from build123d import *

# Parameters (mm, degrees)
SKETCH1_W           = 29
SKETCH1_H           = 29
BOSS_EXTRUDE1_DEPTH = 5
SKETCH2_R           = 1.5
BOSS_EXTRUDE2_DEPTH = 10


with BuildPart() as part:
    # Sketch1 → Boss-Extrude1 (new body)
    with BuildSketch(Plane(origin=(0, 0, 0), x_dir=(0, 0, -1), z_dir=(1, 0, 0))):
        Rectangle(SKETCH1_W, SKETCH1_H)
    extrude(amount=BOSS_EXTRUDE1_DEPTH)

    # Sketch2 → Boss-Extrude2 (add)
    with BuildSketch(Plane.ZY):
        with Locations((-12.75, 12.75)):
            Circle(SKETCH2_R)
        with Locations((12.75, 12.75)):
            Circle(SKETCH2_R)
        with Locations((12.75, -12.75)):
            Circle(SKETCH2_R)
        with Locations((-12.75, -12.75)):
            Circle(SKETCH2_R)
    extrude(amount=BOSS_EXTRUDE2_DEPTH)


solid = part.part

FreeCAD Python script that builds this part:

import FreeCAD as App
import Part
import Sketcher

doc = App.newDocument("Part")
params = doc.addObject("Spreadsheet::Sheet", "Params")
for row, (alias, value) in enumerate([
    ("sketch1_width", "29 mm"),
    ("pad1_length", "5 mm"),
    ("sketch2_diameter", "3 mm"),
    ("pad2_length", "10 mm"),
], start=1):
    params.set(f"A{row}", alias)
    params.set(f"B{row}", "=" + value)
    params.setAlias(f"B{row}", alias)

body = doc.addObject("PartDesign::Body", "Body")

sketch1 = body.newObject("Sketcher::SketchObject", "Sketch")
sketch1.AttachmentSupport = (doc.getObject("YZ_Plane"), [""])
sketch1.MapMode = "FlatFace"
sketch1.addGeometry([
    Part.LineSegment(App.Vector(14, 14, 0), App.Vector(-14, 14, 0)),
    Part.LineSegment(App.Vector(-14, 14, 0), App.Vector(-14, -14, 0)),
    Part.LineSegment(App.Vector(-14, -14, 0), App.Vector(14, -14, 0)),
    Part.LineSegment(App.Vector(14, -14, 0), App.Vector(14, 14, 0)),
], False)
sketch1.addConstraint([
    Sketcher.Constraint("Coincident", 0, 2, 1, 1),
    Sketcher.Constraint("Coincident", 1, 2, 2, 1),
    Sketcher.Constraint("Coincident", 2, 2, 3, 1),
    Sketcher.Constraint("Coincident", 3, 2, 0, 1),
    Sketcher.Constraint("Horizontal", 0),
    Sketcher.Constraint("Vertical", 1),
    Sketcher.Constraint("Horizontal", 2),
    Sketcher.Constraint("Vertical", 3),
    Sketcher.Constraint("Symmetric", 0, 2, 2, 2, -1, 1),
    Sketcher.Constraint("Equal", 2, 1),
    Sketcher.Constraint("DistanceX", 0, 2, 0, 1, 29.0),
])
sketch1.setExpression("Constraints[10]", "Params.sketch1_width")
pad1 = body.newObject("PartDesign::Pad", "Pad")
pad1.Profile = sketch1
pad1.setExpression("Length", "Params.pad1_length")

sketch2 = body.newObject("Sketcher::SketchObject", "Sketch001")
sketch2.AttachmentSupport = (doc.getObject("YZ_Plane"), [""])
sketch2.MapMode = "FlatFace"
sketch2.addGeometry([
    Part.Circle(App.Vector(12.8, -12.8, 0), App.Vector(0, 0, 1), 1.5),
    Part.Circle(App.Vector(12.8, 12.8, 0), App.Vector(0, 0, 1), 1.5),
    Part.Circle(App.Vector(-12.8, 12.8, 0), App.Vector(0, 0, 1), 1.5),
    Part.Circle(App.Vector(-12.8, -12.8, 0), App.Vector(0, 0, 1), 1.5),
], False)
sketch2.addConstraint([
    Sketcher.Constraint("Equal", 0, 1),
    Sketcher.Constraint("Equal", 1, 2),
    Sketcher.Constraint("Equal", 2, 3),
    Sketcher.Constraint("Symmetric", 0, 3, 2, 3, -1, 1),
    Sketcher.Constraint("Symmetric", 1, 3, 3, 3, -1, 1),
    Sketcher.Constraint("Symmetric", 1, 3, 2, 3, -2),
    Sketcher.Constraint("Diameter", 0, 3.0),
    Sketcher.Constraint("DistanceY", 0, 3, 1, 3, 25.5),
    Sketcher.Constraint("DistanceX", 2, 3, 1, 3, 25.5),
])
sketch2.setExpression("Constraints[6]", "Params.sketch2_diameter")
pad2 = body.newObject("PartDesign::Pad", "Pad001")
pad2.Profile = sketch2
pad2.setExpression("Length", "Params.pad2_length")
pad2.Reversed = True

doc.recompute()
